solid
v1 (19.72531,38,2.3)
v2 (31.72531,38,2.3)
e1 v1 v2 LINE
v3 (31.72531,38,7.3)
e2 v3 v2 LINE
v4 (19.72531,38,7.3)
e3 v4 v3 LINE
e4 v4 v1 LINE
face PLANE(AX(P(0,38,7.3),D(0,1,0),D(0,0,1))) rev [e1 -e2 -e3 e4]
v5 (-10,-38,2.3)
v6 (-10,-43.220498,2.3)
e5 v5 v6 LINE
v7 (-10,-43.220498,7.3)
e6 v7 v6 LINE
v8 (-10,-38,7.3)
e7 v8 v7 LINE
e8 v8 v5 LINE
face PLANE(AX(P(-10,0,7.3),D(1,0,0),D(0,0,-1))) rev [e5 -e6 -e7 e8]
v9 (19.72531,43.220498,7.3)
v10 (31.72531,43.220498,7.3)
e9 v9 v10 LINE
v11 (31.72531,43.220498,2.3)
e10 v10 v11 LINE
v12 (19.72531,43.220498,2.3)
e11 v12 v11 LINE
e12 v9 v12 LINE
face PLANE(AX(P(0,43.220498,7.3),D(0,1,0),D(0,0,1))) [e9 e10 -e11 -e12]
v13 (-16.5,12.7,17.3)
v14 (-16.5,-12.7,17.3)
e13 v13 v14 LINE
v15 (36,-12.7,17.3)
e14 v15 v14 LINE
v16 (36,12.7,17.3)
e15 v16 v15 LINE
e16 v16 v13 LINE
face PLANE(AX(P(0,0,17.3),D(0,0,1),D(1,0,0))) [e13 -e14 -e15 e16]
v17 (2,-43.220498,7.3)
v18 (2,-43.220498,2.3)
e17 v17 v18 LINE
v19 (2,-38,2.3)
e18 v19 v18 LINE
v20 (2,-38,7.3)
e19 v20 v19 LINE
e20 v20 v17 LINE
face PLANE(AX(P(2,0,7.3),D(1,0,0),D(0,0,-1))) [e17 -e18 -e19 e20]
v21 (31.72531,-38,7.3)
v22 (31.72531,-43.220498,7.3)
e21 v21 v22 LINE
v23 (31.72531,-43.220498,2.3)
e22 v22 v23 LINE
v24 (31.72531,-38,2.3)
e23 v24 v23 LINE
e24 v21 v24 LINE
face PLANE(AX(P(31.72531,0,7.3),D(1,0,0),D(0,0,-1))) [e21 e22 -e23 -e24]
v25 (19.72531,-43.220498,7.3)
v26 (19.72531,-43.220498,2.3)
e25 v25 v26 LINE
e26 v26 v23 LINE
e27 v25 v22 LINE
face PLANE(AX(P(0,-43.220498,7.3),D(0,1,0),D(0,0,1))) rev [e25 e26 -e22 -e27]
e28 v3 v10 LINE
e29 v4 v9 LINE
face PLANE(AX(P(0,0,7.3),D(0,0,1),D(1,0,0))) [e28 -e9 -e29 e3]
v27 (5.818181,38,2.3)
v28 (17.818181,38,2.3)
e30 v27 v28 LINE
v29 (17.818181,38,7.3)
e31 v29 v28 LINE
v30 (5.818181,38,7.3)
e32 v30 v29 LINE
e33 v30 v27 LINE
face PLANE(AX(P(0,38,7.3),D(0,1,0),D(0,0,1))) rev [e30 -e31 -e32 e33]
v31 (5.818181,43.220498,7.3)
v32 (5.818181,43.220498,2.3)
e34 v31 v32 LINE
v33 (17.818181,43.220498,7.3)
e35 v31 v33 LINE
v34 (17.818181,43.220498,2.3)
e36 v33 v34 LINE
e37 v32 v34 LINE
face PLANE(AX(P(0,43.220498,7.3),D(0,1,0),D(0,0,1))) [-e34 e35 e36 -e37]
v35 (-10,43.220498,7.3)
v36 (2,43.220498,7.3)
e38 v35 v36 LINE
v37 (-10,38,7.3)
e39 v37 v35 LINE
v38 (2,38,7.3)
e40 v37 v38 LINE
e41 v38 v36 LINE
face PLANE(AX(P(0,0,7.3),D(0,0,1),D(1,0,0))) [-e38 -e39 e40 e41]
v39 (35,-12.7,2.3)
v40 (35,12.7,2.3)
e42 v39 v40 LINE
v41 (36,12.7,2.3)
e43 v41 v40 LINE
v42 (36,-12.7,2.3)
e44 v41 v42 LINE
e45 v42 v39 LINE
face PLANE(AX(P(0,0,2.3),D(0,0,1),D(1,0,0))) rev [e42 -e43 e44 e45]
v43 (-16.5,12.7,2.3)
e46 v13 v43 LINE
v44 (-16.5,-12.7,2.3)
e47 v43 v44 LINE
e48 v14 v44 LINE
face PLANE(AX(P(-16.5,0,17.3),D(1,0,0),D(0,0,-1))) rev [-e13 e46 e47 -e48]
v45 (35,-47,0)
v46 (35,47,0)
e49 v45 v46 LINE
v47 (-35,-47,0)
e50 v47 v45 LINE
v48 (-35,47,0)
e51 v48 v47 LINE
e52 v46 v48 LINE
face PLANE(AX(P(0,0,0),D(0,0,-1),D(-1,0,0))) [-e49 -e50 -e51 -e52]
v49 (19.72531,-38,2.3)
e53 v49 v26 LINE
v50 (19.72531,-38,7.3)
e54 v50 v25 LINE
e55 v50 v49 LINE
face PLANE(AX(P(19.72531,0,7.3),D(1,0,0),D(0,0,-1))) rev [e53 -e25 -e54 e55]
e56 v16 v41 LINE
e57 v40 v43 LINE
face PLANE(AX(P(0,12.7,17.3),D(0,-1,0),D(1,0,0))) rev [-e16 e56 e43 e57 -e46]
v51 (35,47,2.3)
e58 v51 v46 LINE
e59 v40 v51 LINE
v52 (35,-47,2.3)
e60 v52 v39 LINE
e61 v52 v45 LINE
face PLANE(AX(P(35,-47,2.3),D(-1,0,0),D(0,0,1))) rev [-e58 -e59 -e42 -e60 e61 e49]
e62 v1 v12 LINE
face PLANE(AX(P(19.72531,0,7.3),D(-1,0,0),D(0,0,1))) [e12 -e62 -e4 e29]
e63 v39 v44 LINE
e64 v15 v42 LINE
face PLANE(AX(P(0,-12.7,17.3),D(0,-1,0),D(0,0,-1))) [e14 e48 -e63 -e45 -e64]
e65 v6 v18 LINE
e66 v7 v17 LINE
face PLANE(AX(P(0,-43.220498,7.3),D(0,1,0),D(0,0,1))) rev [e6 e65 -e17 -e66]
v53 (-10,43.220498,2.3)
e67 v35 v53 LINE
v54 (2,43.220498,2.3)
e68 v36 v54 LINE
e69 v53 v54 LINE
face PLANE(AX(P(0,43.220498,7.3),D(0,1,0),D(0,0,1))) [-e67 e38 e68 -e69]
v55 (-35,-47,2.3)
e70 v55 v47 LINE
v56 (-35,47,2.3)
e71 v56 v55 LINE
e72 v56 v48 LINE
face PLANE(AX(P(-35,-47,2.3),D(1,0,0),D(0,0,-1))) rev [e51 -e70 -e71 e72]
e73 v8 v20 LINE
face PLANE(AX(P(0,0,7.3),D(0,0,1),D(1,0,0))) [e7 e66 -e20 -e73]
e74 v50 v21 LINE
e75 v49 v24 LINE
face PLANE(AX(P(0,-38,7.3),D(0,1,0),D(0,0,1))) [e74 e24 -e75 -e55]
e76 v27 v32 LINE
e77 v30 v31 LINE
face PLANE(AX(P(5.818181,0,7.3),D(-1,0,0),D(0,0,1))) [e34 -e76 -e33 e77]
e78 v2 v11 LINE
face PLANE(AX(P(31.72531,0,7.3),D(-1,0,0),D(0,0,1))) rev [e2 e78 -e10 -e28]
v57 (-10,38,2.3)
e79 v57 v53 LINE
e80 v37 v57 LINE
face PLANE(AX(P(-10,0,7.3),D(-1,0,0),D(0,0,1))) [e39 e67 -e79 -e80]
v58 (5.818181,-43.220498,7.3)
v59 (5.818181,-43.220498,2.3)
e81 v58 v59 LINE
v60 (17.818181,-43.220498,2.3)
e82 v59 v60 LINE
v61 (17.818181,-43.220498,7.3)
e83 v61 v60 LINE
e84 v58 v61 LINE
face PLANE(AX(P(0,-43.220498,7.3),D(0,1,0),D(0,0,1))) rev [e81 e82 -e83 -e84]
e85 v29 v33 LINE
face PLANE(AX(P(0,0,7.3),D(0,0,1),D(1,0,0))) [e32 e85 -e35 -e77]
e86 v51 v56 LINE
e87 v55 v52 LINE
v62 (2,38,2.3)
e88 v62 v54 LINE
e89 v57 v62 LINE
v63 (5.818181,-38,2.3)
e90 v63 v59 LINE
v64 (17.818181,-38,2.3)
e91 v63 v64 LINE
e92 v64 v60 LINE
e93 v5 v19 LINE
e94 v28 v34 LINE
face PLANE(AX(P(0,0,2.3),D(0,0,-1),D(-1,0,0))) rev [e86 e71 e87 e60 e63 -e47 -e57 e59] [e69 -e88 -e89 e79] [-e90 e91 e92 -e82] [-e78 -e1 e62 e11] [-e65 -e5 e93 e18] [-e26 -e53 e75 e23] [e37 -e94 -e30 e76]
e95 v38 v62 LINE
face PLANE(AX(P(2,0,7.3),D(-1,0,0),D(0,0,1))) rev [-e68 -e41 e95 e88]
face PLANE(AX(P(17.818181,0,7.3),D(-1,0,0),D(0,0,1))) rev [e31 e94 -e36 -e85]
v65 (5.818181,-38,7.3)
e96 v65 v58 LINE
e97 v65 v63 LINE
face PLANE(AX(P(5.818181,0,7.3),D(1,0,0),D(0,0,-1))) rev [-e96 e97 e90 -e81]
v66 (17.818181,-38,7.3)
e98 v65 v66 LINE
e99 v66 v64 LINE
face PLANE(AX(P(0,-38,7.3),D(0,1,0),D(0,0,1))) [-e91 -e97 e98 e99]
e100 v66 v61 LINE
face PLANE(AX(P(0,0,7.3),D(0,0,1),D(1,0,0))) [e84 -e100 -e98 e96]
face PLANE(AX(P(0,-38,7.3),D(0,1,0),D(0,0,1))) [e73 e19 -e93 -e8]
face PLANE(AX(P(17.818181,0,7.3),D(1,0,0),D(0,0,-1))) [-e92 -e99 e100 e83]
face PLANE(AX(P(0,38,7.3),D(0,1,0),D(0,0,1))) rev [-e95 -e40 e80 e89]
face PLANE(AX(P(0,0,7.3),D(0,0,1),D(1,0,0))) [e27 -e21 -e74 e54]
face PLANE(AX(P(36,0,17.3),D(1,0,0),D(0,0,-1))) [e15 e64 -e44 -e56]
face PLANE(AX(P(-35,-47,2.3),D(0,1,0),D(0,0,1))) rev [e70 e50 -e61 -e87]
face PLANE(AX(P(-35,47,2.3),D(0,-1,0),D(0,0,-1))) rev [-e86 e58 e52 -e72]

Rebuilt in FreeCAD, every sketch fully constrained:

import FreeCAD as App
import Part
import Sketcher
from FreeCAD import Vector

doc = App.newDocument("Part")
body = doc.addObject("PartDesign::Body", "Body")

# Sketch on XY plane
sketch1 = body.newObject("Sketcher::SketchObject", "Sketch")
sketch1.AttachmentSupport = (doc.getObject("XY_Plane"), [""])
sketch1.MapMode = "FlatFace"
sketch1.addGeometry(Part.LineSegment(Vector(-35, 47, 0), Vector(-35, -47, 0)), False)
sketch1.addGeometry(Part.LineSegment(Vector(-35, -47, 0), Vector(35, -47, 0)), False)
sketch1.addGeometry(Part.LineSegment(Vector(35, -47, 0), Vector(35, 47, 0)), False)
sketch1.addGeometry(Part.LineSegment(Vector(35, 47, 0), Vector(-35, 47, 0)), False)
sketch1.addConstraint(Sketcher.Constraint("Coincident", 0, 2, 1, 1))
sketch1.addConstraint(Sketcher.Constraint("Coincident", 1, 2, 2, 1))
sketch1.addConstraint(Sketcher.Constraint("Coincident", 2, 2, 3, 1))
sketch1.addConstraint(Sketcher.Constraint("Coincident", 3, 2, 0, 1))
sketch1.addConstraint(Sketcher.Constraint("Vertical", 0))
sketch1.addConstraint(Sketcher.Constraint("Horizontal", 1))
sketch1.addConstraint(Sketcher.Constraint("Vertical", 2))
sketch1.addConstraint(Sketcher.Constraint("Horizontal", 3))
sketch1.addConstraint(Sketcher.Constraint("Symmetric", 0, 2, 2, 2, -1, 1))
sketch1.addConstraint(Sketcher.Constraint("DistanceX", 1, 1, 1, 2, 70.0))
sketch1.addConstraint(Sketcher.Constraint("DistanceY", 0, 2, 0, 1, 94.0))
pad1 = body.newObject("PartDesign::Pad", "Pad")
pad1.Profile = sketch1
pad1.Length = 2.3

# Sketch on XY plane
sketch2 = body.newObject("Sketcher::SketchObject", "Sketch001")
sketch2.AttachmentSupport = (doc.getObject("XY_Plane"), [""])
sketch2.MapMode = "FlatFace"
sketch2.AttachmentOffset = App.Placement(Vector(0, 0, 2.3), App.Rotation())
sketch2.addGeometry(Part.LineSegment(Vector(-16, 13, 0), Vector(-16, -13, 0)), False)
sketch2.addGeometry(Part.LineSegment(Vector(-16, -13, 0), Vector(36, -13, 0)), False)
sketch2.addGeometry(Part.LineSegment(Vector(36, -13, 0), Vector(36, 13, 0)), False)
sketch2.addGeometry(Part.LineSegment(Vector(36, 13, 0), Vector(-16, 13, 0)), False)
sketch2.addConstraint(Sketcher.Constraint("Coincident", 0, 2, 1, 1))
sketch2.addConstraint(Sketcher.Constraint("Coincident", 1, 2, 2, 1))
sketch2.addConstraint(Sketcher.Constraint("Coincident", 2, 2, 3, 1))
sketch2.addConstraint(Sketcher.Constraint("Coincident", 3, 2, 0, 1))
sketch2.addConstraint(Sketcher.Constraint("Vertical", 0))
sketch2.addConstraint(Sketcher.Constraint("Horizontal", 1))
sketch2.addConstraint(Sketcher.Constraint("Vertical", 2))
sketch2.addConstraint(Sketcher.Constraint("Horizontal", 3))
sketch2.addConstraint(Sketcher.Constraint("DistanceX", 1, 1, 1, 2, 52.5))
sketch2.addConstraint(Sketcher.Constraint("DistanceY", 0, 2, 0, 1, 25.4))
sketch2.addConstraint(Sketcher.Constraint("DistanceX", -1, 1, 1, 2, 36.0))
sketch2.addConstraint(Sketcher.Constraint("DistanceY", 0, 2, -1, 1, 12.7))
pad2 = body.newObject("PartDesign::Pad", "Pad001")
pad2.Profile = sketch2
pad2.Length = 15

# Sketch on XY plane
sketch3 = body.newObject("Sketcher::SketchObject", "Sketch002")
sketch3.AttachmentSupport = (doc.getObject("XY_Plane"), [""])
sketch3.MapMode = "FlatFace"
sketch3.AttachmentOffset = App.Placement(Vector(0, 0, 2.3), App.Rotation())
sketch3.addGeometry(Part.LineSegment(Vector(-10, 43, 0), Vector(-10, 38, 0)), False)
sketch3.addGeometry(Part.LineSegment(Vector(-10, 38, 0), Vector(2, 38, 0)), False)
sketch3.addGeometry(Part.LineSegment(Vector(2, 38, 0), Vector(2, 43, 0)), False)
sketch3.addGeometry(Part.LineSegment(Vector(2, 43, 0), Vector(-10, 43, 0)), False)
sketch3.addGeometry(Part.LineSegment(Vector(6, 43, 0), Vector(6, 38, 0)), False)
sketch3.addGeometry(Part.LineSegment(Vector(6, 38, 0), Vector(18, 38, 0)), False)
sketch3.addGeometry(Part.LineSegment(Vector(18, 38, 0), Vector(18, 43, 0)), False)
sketch3.addGeometry(Part.LineSegment(Vector(18, 43, 0), Vector(6, 43, 0)), False)
sketch3.addGeometry(Part.LineSegment(Vector(20, 43, 0), Vector(20, 38, 0)), False)
sketch3.addGeometry(Part.LineSegment(Vector(20, 38, 0), Vector(32, 38, 0)), False)
sketch3.addGeometry(Part.LineSegment(Vector(32, 38, 0), Vector(32, 43, 0)), False)
sketch3.addGeometry(Part.LineSegment(Vector(32, 43, 0), Vector(20, 43, 0)), False)
sketch3.addGeometry(Part.LineSegment(Vector(-10, -38, 0), Vector(-10, -43, 0)), False)
sketch3.addGeometry(Part.LineSegment(Vector(-10, -43, 0), Vector(2, -43, 0)), False)
sketch3.addGeometry(Part.LineSegment(Vector(2, -43, 0), Vector(2, -38, 0)), False)
sketch3.addGeometry(Part.LineSegment(Vector(2, -38, 0), Vector(-10, -38, 0)), False)
sketch3.addGeometry(Part.LineSegment(Vector(6, -38, 0), Vector(6, -43, 0)), False)
sketch3.addGeometry(Part.LineSegment(Vector(6, -43, 0), Vector(18, -43, 0)), False)
sketch3.addGeometry(Part.LineSegment(Vector(18, -43, 0), Vector(18, -38, 0)), False)
sketch3.addGeometry(Part.LineSegment(Vector(18, -38, 0), Vector(6, -38, 0)), False)
sketch3.addGeometry(Part.LineSegment(Vector(20, -38, 0), Vector(20, -43, 0)), False)
sketch3.addGeometry(Part.LineSegment(Vector(20, -43, 0), Vector(32, -43, 0)), False)
sketch3.addGeometry(Part.LineSegment(Vector(32, -43, 0), Vector(32, -38, 0)), False)
sketch3.addGeometry(Part.LineSegment(Vector(32, -38, 0), Vector(20, -38, 0)), False)
sketch3.addConstraint(Sketcher.Constraint("Coincident", 0, 2, 1, 1))
sketch3.addConstraint(Sketcher.Constraint("Coincident", 1, 2, 2, 1))
sketch3.addConstraint(Sketcher.Constraint("Coincident", 2, 2, 3, 1))
sketch3.addConstraint(Sketcher.Constraint("Coincident", 3, 2, 0, 1))
sketch3.addConstraint(Sketcher.Constraint("Coincident", 4, 2, 5, 1))
sketch3.addConstraint(Sketcher.Constraint("Coincident", 5, 2, 6, 1))
sketch3.addConstraint(Sketcher.Constraint("Coincident", 6, 2, 7, 1))
sketch3.addConstraint(Sketcher.Constraint("Coincident", 7, 2, 4, 1))
sketch3.addConstraint(Sketcher.Constraint("Coincident", 8, 2, 9, 1))
sketch3.addConstraint(Sketcher.Constraint("Coincident", 9, 2, 10, 1))
sketch3.addConstraint(Sketcher.Constraint("Coincident", 10, 2, 11, 1))
sketch3.addConstraint(Sketcher.Constraint("Coincident", 11, 2, 8, 1))
sketch3.addConstraint(Sketcher.Constraint("Coincident", 12, 2, 13, 1))
sketch3.addConstraint(Sketcher.Constraint("Coincident", 13, 2, 14, 1))
sketch3.addConstraint(Sketcher.Constraint("Coincident", 14, 2, 15, 1))
sketch3.addConstraint(Sketcher.Constraint("Coincident", 15, 2, 12, 1))
sketch3.addConstraint(Sketcher.Constraint("Coincident", 16, 2, 17, 1))
sketch3.addConstraint(Sketcher.Constraint("Coincident", 17, 2, 18, 1))
sketch3.addConstraint(Sketcher.Constraint("Coincident", 18, 2, 19, 1))
sketch3.addConstraint(Sketcher.Constraint("Coincident", 19, 2, 16, 1))
sketch3.addConstraint(Sketcher.Constraint("Coincident", 20, 2, 21, 1))
sketch3.addConstraint(Sketcher.Constraint("Coincident", 21, 2, 22, 1))
sketch3.addConstraint(Sketcher.Constraint("Coincident", 22, 2, 23, 1))
sketch3.addConstraint(Sketcher.Constraint("Coincident", 23, 2, 20, 1))
sketch3.addConstraint(Sketcher.Constraint("Vertical", 0))
sketch3.addConstraint(Sketcher.Constraint("Horizontal", 1))
sketch3.addConstraint(Sketcher.Constraint("Vertical", 2))
sketch3.addConstraint(Sketcher.Constraint("Horizontal", 3))
sketch3.addConstraint(Sketcher.Constraint("Vertical", 4))
sketch3.addConstraint(Sketcher.Constraint("Horizontal", 5))
sketch3.addConstraint(Sketcher.Constraint("Vertical", 6))
sketch3.addConstraint(Sketcher.Constraint("Horizontal", 7))
sketch3.addConstraint(Sketcher.Constraint("Vertical", 8))
sketch3.addConstraint(Sketcher.Constraint("Horizontal", 9))
sketch3.addConstraint(Sketcher.Constraint("Vertical", 10))
sketch3.addConstraint(Sketcher.Constraint("Horizontal", 11))
sketch3.addConstraint(Sketcher.Constraint("Vertical", 12))
sketch3.addConstraint(Sketcher.Constraint("Horizontal", 13))
sketch3.addConstraint(Sketcher.Constraint("Vertical", 14))
sketch3.addConstraint(Sketcher.Constraint("Horizontal", 15))
sketch3.addConstraint(Sketcher.Constraint("Vertical", 16))
sketch3.addConstraint(Sketcher.Constraint("Horizontal", 17))
sketch3.addConstraint(Sketcher.Constraint("Vertical", 18))
sketch3.addConstraint(Sketcher.Constraint("Horizontal", 19))
sketch3.addConstraint(Sketcher.Constraint("Vertical", 20))
sketch3.addConstraint(Sketcher.Constraint("Horizontal", 21))
sketch3.addConstraint(Sketcher.Constraint("Vertical", 22))
sketch3.addConstraint(Sketcher.Constraint("Horizontal", 23))
sketch3.addConstraint(Sketcher.Constraint("Symmetric", 3, 2, 12, 2, -1))
sketch3.addConstraint(Sketcher.Constraint("Symmetric", 1, 2, 14, 2, -1))
sketch3.addConstraint(Sketcher.Constraint("Symmetric", 7, 2, 16, 2, -1))
sketch3.addConstraint(Sketcher.Constraint("Symmetric", 5, 2, 18, 2, -1))
sketch3.addConstraint(Sketcher.Constraint("Symmetric", 11, 2, 20, 2, -1))
sketch3.addConstraint(Sketcher.Constraint("Symmetric", 9, 2, 22, 2, -1))
sketch3.addConstraint(Sketcher.Constraint("Horizontal", 1, 2, 4, 2))
sketch3.addConstraint(Sketcher.Constraint("Horizontal", 3, 2, 6, 2))
sketch3.addConstraint(Sketcher.Constraint("Horizontal", 5, 2, 8, 2))
sketch3.addConstraint(Sketcher.Constraint("Horizontal", 7, 2, 10, 2))
sketch3.addConstraint(Sketcher.Constraint("Equal", 3, 5))
sketch3.addConstraint(Sketcher.Constraint("Equal", 7, 9))
sketch3.addConstraint(Sketcher.Constraint("DistanceX", 1, 1, 1, 2, 12.0))
sketch3.addConstraint(Sketcher.Constraint("DistanceX", 0, 2, -1, 1, 10.0))
sketch3.addConstraint(Sketcher.Constraint("DistanceY", -1, 1, 0, 2, 38.0))
sketch3.addConstraint(Sketcher.Constraint("DistanceY", 0, 2, 0, 1, 5.220498))
sketch3.addConstraint(Sketcher.Constraint("DistanceX", -1, 1, 4, 2, 5.818181))
sketch3.addConstraint(Sketcher.Constraint("DistanceX", -1, 1, 8, 2, 19.72531))
pad3 = body.newObject("PartDesign::Pad", "Pad002")
pad3.Profile = sketch3
pad3.Length = 5

doc.recompute()
